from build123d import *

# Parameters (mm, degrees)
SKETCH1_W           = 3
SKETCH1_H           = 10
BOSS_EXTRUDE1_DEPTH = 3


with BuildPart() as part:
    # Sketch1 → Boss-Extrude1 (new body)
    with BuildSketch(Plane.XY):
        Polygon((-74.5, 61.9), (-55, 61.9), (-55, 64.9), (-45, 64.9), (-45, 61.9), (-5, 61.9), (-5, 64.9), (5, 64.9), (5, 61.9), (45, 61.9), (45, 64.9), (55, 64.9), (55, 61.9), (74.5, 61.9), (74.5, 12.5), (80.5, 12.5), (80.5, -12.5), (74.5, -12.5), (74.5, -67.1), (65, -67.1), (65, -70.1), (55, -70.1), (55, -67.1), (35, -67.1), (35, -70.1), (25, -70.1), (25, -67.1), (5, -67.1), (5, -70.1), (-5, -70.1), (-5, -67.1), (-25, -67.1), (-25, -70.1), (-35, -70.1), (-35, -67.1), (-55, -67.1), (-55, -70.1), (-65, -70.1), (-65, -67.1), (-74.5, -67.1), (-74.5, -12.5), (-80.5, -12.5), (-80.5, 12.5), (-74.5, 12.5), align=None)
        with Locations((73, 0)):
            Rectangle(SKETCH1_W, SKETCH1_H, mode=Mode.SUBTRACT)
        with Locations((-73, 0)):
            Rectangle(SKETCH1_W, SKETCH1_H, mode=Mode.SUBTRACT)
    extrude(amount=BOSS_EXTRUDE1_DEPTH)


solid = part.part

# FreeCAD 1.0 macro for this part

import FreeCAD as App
import Part
import Sketcher

V = App.Vector

doc = App.newDocument("Part")
params = doc.addObject("Spreadsheet::Sheet", "Params")
for row, (alias, value) in enumerate([
    ("sketch1_width", "6 mm"),
    ("sketch1_width2", "10 mm"),
    ("sketch1_width3", "20 mm"),
    ("sketch1_width4", "3 mm"),
    ("sketch1_height", "25 mm"),
    ("pad1_length", "3 mm"),
], start=1):
    params.set(f"A{row}", alias)
    params.set(f"B{row}", "=" + value)
    params.setAlias(f"B{row}", alias)

body = doc.addObject("PartDesign::Body", "Body")

# Sketch on XY plane
sketch1 = body.newObject("Sketcher::SketchObject", "Sketch")
sketch1.AttachmentSupport = (doc.getObject("XY_Plane"), [""])
sketch1.MapMode = "FlatFace"
sketch1.addGeometry([
    Part.LineSegment(V(-55, 61.9, 0), V(-74.5, 61.9, 0)),  # 0
    Part.LineSegment(V(-74.5, 61.9, 0), V(-74.5, 12.5, 0)),  # 1
    Part.LineSegment(V(-74.5, 12.5, 0), V(-80.5, 12.5, 0)),  # 2
    Part.LineSegment(V(-80.5, 12.5, 0), V(-80.5, -12.5, 0)),  # 3
    Part.LineSegment(V(-80.5, -12.5, 0), V(-74.5, -12.5, 0)),  # 4
    Part.LineSegment(V(-74.5, -12.5, 0), V(-74.5, -67.1, 0)),  # 5
    Part.LineSegment(V(-74.5, -67.1, 0), V(-65, -67.1, 0)),  # 6
    Part.LineSegment(V(-65, -67.1, 0), V(-65, -70.1, 0)),  # 7
    Part.LineSegment(V(-65, -70.1, 0), V(-55, -70.1, 0)),  # 8
    Part.LineSegment(V(-55, -70.1, 0), V(-55, -67.1, 0)),  # 9
    Part.LineSegment(V(-55, -67.1, 0), V(-35, -67.1, 0)),  # 10
    Part.LineSegment(V(-35, -67.1, 0), V(-35, -70.1, 0)),  # 11
    Part.LineSegment(V(-35, -70.1, 0), V(-25, -70.1, 0)),  # 12
    Part.LineSegment(V(-25, -70.1, 0), V(-25, -67.1, 0)),  # 13
    Part.LineSegment(V(-25, -67.1, 0), V(-5, -67.1, 0)),  # 14
    Part.LineSegment(V(-5, -67.1, 0), V(-5, -70.1, 0)),  # 15
    Part.LineSegment(V(-5, -70.1, 0), V(5, -70.1, 0)),  # 16
    Part.LineSegment(V(5, -70.1, 0), V(5, -67.1, 0)),  # 17
    Part.LineSegment(V(5, -67.1, 0), V(25, -67.1, 0)),  # 18
    Part.LineSegment(V(25, -67.1, 0), V(25, -70.1, 0)),  # 19
    Part.LineSegment(V(25, -70.1, 0), V(35, -70.1, 0)),  # 20
    Part.LineSegment(V(35, -70.1, 0), V(35, -67.1, 0)),  # 21
    Part.LineSegment(V(35, -67.1, 0), V(55, -67.1, 0)),  # 22
    Part.LineSegment(V(55, -67.1, 0), V(55, -70.1, 0)),  # 23
    Part.LineSegment(V(55, -70.1, 0), V(65, -70.1, 0)),  # 24
    Part.LineSegment(V(65, -70.1, 0), V(65, -67.1, 0)),  # 25
    Part.LineSegment(V(65, -67.1, 0), V(74.5, -67.1, 0)),  # 26
    Part.LineSegment(V(74.5, -67.1, 0), V(74.5, -12.5, 0)),  # 27
    Part.LineSegment(V(74.5, -12.5, 0), V(80.5, -12.5, 0)),  # 28
    Part.LineSegment(V(80.5, -12.5, 0), V(80.5, 12.5, 0)),  # 29
    Part.LineSegment(V(80.5, 12.5, 0), V(74.5, 12.5, 0)),  # 30
    Part.LineSegment(V(74.5, 12.5, 0), V(74.5, 61.9, 0)),  # 31
    Part.LineSegment(V(74.5, 61.9, 0), V(55, 61.9, 0)),  # 32
    Part.LineSegment(V(55, 61.9, 0), V(55, 64.9, 0)),  # 33
    Part.LineSegment(V(55, 64.9, 0), V(45, 64.9, 0)),  # 34
    Part.LineSegment(V(45, 64.9, 0), V(45, 61.9, 0)),  # 35
    Part.LineSegment(V(45, 61.9, 0), V(5, 61.9, 0)),  # 36
    Part.LineSegment(V(5, 61.9, 0), V(5, 64.9, 0)),  # 37
    Part.LineSegment(V(5, 64.9, 0), V(-5, 64.9, 0)),  # 38
    Part.LineSegment(V(-5, 64.9, 0), V(-5, 61.9, 0)),  # 39
    Part.LineSegment(V(-5, 61.9, 0), V(-45, 61.9, 0)),  # 40
    Part.LineSegment(V(-45, 61.9, 0), V(-45, 64.9, 0)),  # 41
    Part.LineSegment(V(-45, 64.9, 0), V(-55, 64.9, 0)),  # 42
    Part.LineSegment(V(-55, 64.9, 0), V(-55, 61.9, 0)),  # 43
    Part.LineSegment(V(71.5, -5, 0), V(71.5, 5, 0)),  # 44
    Part.LineSegment(V(71.5, 5, 0), V(74.5, 5, 0)),  # 45
    Part.LineSegment(V(74.5, 5, 0), V(74.5, -5, 0)),  # 46
    Part.LineSegment(V(74.5, -5, 0), V(71.5, -5, 0)),  # 47
    Part.LineSegment(V(-74.5, -5, 0), V(-74.5, 5, 0)),  # 48
    Part.LineSegment(V(-74.5, 5, 0), V(-71.5, 5, 0)),  # 49
    Part.LineSegment(V(-71.5, 5, 0), V(-71.5, -5, 0)),  # 50
    Part.LineSegment(V(-71.5, -5, 0), V(-74.5, -5, 0)),  # 51
], False)
sketch1.addConstraint([
    Sketcher.Constraint("Coincident", 0, 2, 1, 1),
    Sketcher.Constraint("Coincident", 1, 2, 2, 1),
    Sketcher.Constraint("Coincident", 2, 2, 3, 1),
    Sketcher.Constraint("Coincident", 3, 2, 4, 1),
    Sketcher.Constraint("Coincident", 4, 2, 5, 1),
    Sketcher.Constraint("Coincident", 5, 2, 6, 1),
    Sketcher.Constraint("Coincident", 6, 2, 7, 1),
    Sketcher.Constraint("Coincident", 7, 2, 8, 1),
    Sketcher.Constraint("Coincident", 8, 2, 9, 1),
    Sketcher.Constraint("Coincident", 9, 2, 10, 1),
    Sketcher.Constraint("Coincident", 10, 2, 11, 1),
    Sketcher.Constraint("Coincident", 11, 2, 12, 1),
    Sketcher.Constraint("Coincident", 12, 2, 13, 1),
    Sketcher.Constraint("Coincident", 13, 2, 14, 1),
    Sketcher.Constraint("Coincident", 14, 2, 15, 1),
    Sketcher.Constraint("Coincident", 15, 2, 16, 1),
    Sketcher.Constraint("Coincident", 16, 2, 17, 1),
    Sketcher.Constraint("Coincident", 17, 2, 18, 1),
    Sketcher.Constraint("Coincident", 18, 2, 19, 1),
    Sketcher.Constraint("Coincident", 19, 2, 20, 1),
    Sketcher.Constraint("Coincident", 20, 2, 21, 1),
    Sketcher.Constraint("Coincident", 21, 2, 22, 1),
    Sketcher.Constraint("Coincident", 22, 2, 23, 1),
    Sketcher.Constraint("Coincident", 23, 2, 24, 1),
    Sketcher.Constraint("Coincident", 24, 2, 25, 1),
    Sketcher.Constraint("Coincident", 25, 2, 26, 1),
    Sketcher.Constraint("Coincident", 26, 2, 27, 1),
    Sketcher.Constraint("Coincident", 27, 2, 28, 1),
    Sketcher.Constraint("Coincident", 28, 2, 29, 1),
    Sketcher.Constraint("Coincident", 29, 2, 30, 1),
    Sketcher.Constraint("Coincident", 30, 2, 31, 1),
    Sketcher.Constraint("Coincident", 31, 2, 32, 1),
    Sketcher.Constraint("Coincident", 32, 2, 33, 1),
    Sketcher.Constraint("Coincident", 33, 2, 34, 1),
    Sketcher.Constraint("Coincident", 34, 2, 35, 1),
    Sketcher.Constraint("Coincident", 35, 2, 36, 1),
    Sketcher.Constraint("Coincident", 36, 2, 37, 1),
    Sketcher.Constraint("Coincident", 37, 2, 38, 1),
    Sketcher.Constraint("Coincident", 38, 2, 39, 1),
    Sketcher.Constraint("Coincident", 39, 2, 40, 1),
    Sketcher.Constraint("Coincident", 40, 2, 41, 1),
    Sketcher.Constraint("Coincident", 41, 2, 42, 1),
    Sketcher.Constraint("Coincident", 42, 2, 43, 1),
    Sketcher.Constraint("Coincident", 43, 2, 0, 1),
    Sketcher.Constraint("Coincident", 44, 2, 45, 1),
    Sketcher.Constraint("Coincident", 45, 2, 46, 1),
    Sketcher.Constraint("Coincident", 46, 2, 47, 1),
    Sketcher.Constraint("Coincident", 47, 2, 44, 1),
    Sketcher.Constraint("Coincident", 48, 2, 49, 1),
    Sketcher.Constraint("Coincident", 49, 2, 50, 1),
    Sketcher.Constraint("Coincident", 50, 2, 51, 1),
    Sketcher.Constraint("Coincident", 51, 2, 48, 1),
    Sketcher.Constraint("Horizontal", 0),
    Sketcher.Constraint("Vertical", 1),
    Sketcher.Constraint("Horizontal", 2),
    Sketcher.Constraint("Vertical", 3),
    Sketcher.Constraint("Horizontal", 4),
    Sketcher.Constraint("Vertical", 5),
    Sketcher.Constraint("Horizontal", 6),
    Sketcher.Constraint("Vertical", 7),
    Sketcher.Constraint("Horizontal", 8),
    Sketcher.Constraint("Vertical", 9),
    Sketcher.Constraint("Horizontal", 10),
    Sketcher.Constraint("Vertical", 11),
    Sketcher.Constraint("Horizontal", 12),
    Sketcher.Constraint("Vertical", 13),
    Sketcher.Constraint("Horizontal", 14),
    Sketcher.Constraint("Vertical", 15),
    Sketcher.Constraint("Horizontal", 16),
    Sketcher.Constraint("Vertical", 17),
    Sketcher.Constraint("Horizontal", 18),
    Sketcher.Constraint("Vertical", 19),
    Sketcher.Constraint("Horizontal", 20),
    Sketcher.Constraint("Vertical", 21),
    Sketcher.Constraint("Horizontal", 22),
    Sketcher.Constraint("Vertical", 23),
    Sketcher.Constraint("Horizontal", 24),
    Sketcher.Constraint("Vertical", 25),
    Sketcher.Constraint("Horizontal", 26),
    Sketcher.Constraint("Vertical", 27),
    Sketcher.Constraint("Horizontal", 28),
    Sketcher.Constraint("Vertical", 29),
    Sketcher.Constraint("Horizontal", 30),
    Sketcher.Constraint("Vertical", 31),
    Sketcher.Constraint("Horizontal", 32),
    Sketcher.Constraint("Vertical", 33),
    Sketcher.Constraint("Horizontal", 34),
    Sketcher.Constraint("Vertical", 35),
    Sketcher.Constraint("Horizontal", 36),
    Sketcher.Constraint("Vertical", 37),
    Sketcher.Constraint("Horizontal", 38),
    Sketcher.Constraint("Vertical", 39),
    Sketcher.Constraint("Horizontal", 40),
    Sketcher.Constraint("Vertical", 41),
    Sketcher.Constraint("Horizontal", 42),
    Sketcher.Constraint("Vertical", 43),
    Sketcher.Constraint("Vertical", 44),
    Sketcher.Constraint("Horizontal", 45),
    Sketcher.Constraint("Vertical", 46),
    Sketcher.Constraint("Horizontal", 47),
    Sketcher.Constraint("Vertical", 48),
    Sketcher.Constraint("Horizontal", 49),
    Sketcher.Constraint("Vertical", 50),
    Sketcher.Constraint("Horizontal", 51),
    Sketcher.Constraint("Symmetric", 1, 2, 27, 2, -1, 1),
    Sketcher.Constraint("Symmetric", 3, 2, 29, 2, -1, 1),
    Sketcher.Constraint("Symmetric", 46, 2, 48, 2, -1, 1),
    Sketcher.Constraint("Symmetric", 44, 2, 50, 2, -1, 1),
    Sketcher.Constraint("Symmetric", 14, 2, 17, 2, -2),
    Sketcher.Constraint("Symmetric", 12, 2, 19, 2, -2),
    Sketcher.Constraint("Symmetric", 10, 2, 21, 2, -2),
    Sketcher.Constraint("Symmetric", 8, 2, 23, 2, -2),
    Sketcher.Constraint("Symmetric", 6, 2, 25, 2, -2),
    Sketcher.Constraint("Symmetric", 4, 2, 27, 2, -2),
    Sketcher.Constraint("Symmetric", 0, 2, 31, 2, -2),
    Sketcher.Constraint("Symmetric", 36, 2, 39, 2, -2),
    Sketcher.Constraint("Symmetric", 34, 2, 41, 2, -2),
    Sketcher.Constraint("Horizontal", 6, 2, 9, 2),
    Sketcher.Constraint("Horizontal", 8, 2, 11, 2),
    Sketcher.Constraint("Horizontal", 10, 2, 13, 2),
    Sketcher.Constraint("Horizontal", 12, 2, 15, 2),
    Sketcher.Constraint("Horizontal", 32, 2, 35, 2),
    Sketcher.Constraint("Horizontal", 34, 2, 37, 2),
    Sketcher.Constraint("Horizontal", 45, 2, 48, 2),
    Sketcher.Constraint("Vertical", 23, 2, 32, 2),
    Sketcher.Constraint("Vertical", 17, 2, 36, 2),
    Sketcher.Constraint("Vertical", 9, 2, 42, 2),
    Sketcher.Constraint("Vertical", 31, 2, 45, 2),
    Sketcher.Constraint("Equal", 8, 12),
    Sketcher.Constraint("Equal", 10, 14),
    Sketcher.Constraint("Equal", 12, 16),
    Sketcher.Constraint("Equal", 24, 34),
    Sketcher.Constraint("Equal", 51, 7),
    Sketcher.Constraint("Equal", 25, 33),
    Sketcher.Constraint("Equal", 42, 44),
    Sketcher.Constraint("DistanceX", 2, 2, 2, 1, 6.0),
    Sketcher.Constraint("DistanceX", 8, 1, 8, 2, 10.0),
    Sketcher.Constraint("DistanceX", 10, 1, 10, 2, 20.0),
    Sketcher.Constraint("DistanceX", 45, 1, 45, 2, 3.0),
    Sketcher.Constraint("DistanceY", 3, 2, 3, 1, 25.0),
    Sketcher.Constraint("DistanceX", 0, 2, 0, 1, 19.5),
    Sketcher.Constraint("DistanceY", 1, 2, 1, 1, 49.4),
    Sketcher.Constraint("DistanceY", 5, 2, 5, 1, 54.6),
])
sketch1.setExpression("Constraints[135]", "Params.sketch1_width")
sketch1.setExpression("Constraints[136]", "Params.sketch1_width2")
sketch1.setExpression("Constraints[137]", "Params.sketch1_width3")
sketch1.setExpression("Constraints[138]", "Params.sketch1_width4")
sketch1.setExpression("Constraints[139]", "Params.sketch1_height")
pad1 = body.newObject("PartDesign::Pad", "Pad")
pad1.Profile = sketch1
pad1.setExpression("Length", "Params.pad1_length")

doc.recompute()
